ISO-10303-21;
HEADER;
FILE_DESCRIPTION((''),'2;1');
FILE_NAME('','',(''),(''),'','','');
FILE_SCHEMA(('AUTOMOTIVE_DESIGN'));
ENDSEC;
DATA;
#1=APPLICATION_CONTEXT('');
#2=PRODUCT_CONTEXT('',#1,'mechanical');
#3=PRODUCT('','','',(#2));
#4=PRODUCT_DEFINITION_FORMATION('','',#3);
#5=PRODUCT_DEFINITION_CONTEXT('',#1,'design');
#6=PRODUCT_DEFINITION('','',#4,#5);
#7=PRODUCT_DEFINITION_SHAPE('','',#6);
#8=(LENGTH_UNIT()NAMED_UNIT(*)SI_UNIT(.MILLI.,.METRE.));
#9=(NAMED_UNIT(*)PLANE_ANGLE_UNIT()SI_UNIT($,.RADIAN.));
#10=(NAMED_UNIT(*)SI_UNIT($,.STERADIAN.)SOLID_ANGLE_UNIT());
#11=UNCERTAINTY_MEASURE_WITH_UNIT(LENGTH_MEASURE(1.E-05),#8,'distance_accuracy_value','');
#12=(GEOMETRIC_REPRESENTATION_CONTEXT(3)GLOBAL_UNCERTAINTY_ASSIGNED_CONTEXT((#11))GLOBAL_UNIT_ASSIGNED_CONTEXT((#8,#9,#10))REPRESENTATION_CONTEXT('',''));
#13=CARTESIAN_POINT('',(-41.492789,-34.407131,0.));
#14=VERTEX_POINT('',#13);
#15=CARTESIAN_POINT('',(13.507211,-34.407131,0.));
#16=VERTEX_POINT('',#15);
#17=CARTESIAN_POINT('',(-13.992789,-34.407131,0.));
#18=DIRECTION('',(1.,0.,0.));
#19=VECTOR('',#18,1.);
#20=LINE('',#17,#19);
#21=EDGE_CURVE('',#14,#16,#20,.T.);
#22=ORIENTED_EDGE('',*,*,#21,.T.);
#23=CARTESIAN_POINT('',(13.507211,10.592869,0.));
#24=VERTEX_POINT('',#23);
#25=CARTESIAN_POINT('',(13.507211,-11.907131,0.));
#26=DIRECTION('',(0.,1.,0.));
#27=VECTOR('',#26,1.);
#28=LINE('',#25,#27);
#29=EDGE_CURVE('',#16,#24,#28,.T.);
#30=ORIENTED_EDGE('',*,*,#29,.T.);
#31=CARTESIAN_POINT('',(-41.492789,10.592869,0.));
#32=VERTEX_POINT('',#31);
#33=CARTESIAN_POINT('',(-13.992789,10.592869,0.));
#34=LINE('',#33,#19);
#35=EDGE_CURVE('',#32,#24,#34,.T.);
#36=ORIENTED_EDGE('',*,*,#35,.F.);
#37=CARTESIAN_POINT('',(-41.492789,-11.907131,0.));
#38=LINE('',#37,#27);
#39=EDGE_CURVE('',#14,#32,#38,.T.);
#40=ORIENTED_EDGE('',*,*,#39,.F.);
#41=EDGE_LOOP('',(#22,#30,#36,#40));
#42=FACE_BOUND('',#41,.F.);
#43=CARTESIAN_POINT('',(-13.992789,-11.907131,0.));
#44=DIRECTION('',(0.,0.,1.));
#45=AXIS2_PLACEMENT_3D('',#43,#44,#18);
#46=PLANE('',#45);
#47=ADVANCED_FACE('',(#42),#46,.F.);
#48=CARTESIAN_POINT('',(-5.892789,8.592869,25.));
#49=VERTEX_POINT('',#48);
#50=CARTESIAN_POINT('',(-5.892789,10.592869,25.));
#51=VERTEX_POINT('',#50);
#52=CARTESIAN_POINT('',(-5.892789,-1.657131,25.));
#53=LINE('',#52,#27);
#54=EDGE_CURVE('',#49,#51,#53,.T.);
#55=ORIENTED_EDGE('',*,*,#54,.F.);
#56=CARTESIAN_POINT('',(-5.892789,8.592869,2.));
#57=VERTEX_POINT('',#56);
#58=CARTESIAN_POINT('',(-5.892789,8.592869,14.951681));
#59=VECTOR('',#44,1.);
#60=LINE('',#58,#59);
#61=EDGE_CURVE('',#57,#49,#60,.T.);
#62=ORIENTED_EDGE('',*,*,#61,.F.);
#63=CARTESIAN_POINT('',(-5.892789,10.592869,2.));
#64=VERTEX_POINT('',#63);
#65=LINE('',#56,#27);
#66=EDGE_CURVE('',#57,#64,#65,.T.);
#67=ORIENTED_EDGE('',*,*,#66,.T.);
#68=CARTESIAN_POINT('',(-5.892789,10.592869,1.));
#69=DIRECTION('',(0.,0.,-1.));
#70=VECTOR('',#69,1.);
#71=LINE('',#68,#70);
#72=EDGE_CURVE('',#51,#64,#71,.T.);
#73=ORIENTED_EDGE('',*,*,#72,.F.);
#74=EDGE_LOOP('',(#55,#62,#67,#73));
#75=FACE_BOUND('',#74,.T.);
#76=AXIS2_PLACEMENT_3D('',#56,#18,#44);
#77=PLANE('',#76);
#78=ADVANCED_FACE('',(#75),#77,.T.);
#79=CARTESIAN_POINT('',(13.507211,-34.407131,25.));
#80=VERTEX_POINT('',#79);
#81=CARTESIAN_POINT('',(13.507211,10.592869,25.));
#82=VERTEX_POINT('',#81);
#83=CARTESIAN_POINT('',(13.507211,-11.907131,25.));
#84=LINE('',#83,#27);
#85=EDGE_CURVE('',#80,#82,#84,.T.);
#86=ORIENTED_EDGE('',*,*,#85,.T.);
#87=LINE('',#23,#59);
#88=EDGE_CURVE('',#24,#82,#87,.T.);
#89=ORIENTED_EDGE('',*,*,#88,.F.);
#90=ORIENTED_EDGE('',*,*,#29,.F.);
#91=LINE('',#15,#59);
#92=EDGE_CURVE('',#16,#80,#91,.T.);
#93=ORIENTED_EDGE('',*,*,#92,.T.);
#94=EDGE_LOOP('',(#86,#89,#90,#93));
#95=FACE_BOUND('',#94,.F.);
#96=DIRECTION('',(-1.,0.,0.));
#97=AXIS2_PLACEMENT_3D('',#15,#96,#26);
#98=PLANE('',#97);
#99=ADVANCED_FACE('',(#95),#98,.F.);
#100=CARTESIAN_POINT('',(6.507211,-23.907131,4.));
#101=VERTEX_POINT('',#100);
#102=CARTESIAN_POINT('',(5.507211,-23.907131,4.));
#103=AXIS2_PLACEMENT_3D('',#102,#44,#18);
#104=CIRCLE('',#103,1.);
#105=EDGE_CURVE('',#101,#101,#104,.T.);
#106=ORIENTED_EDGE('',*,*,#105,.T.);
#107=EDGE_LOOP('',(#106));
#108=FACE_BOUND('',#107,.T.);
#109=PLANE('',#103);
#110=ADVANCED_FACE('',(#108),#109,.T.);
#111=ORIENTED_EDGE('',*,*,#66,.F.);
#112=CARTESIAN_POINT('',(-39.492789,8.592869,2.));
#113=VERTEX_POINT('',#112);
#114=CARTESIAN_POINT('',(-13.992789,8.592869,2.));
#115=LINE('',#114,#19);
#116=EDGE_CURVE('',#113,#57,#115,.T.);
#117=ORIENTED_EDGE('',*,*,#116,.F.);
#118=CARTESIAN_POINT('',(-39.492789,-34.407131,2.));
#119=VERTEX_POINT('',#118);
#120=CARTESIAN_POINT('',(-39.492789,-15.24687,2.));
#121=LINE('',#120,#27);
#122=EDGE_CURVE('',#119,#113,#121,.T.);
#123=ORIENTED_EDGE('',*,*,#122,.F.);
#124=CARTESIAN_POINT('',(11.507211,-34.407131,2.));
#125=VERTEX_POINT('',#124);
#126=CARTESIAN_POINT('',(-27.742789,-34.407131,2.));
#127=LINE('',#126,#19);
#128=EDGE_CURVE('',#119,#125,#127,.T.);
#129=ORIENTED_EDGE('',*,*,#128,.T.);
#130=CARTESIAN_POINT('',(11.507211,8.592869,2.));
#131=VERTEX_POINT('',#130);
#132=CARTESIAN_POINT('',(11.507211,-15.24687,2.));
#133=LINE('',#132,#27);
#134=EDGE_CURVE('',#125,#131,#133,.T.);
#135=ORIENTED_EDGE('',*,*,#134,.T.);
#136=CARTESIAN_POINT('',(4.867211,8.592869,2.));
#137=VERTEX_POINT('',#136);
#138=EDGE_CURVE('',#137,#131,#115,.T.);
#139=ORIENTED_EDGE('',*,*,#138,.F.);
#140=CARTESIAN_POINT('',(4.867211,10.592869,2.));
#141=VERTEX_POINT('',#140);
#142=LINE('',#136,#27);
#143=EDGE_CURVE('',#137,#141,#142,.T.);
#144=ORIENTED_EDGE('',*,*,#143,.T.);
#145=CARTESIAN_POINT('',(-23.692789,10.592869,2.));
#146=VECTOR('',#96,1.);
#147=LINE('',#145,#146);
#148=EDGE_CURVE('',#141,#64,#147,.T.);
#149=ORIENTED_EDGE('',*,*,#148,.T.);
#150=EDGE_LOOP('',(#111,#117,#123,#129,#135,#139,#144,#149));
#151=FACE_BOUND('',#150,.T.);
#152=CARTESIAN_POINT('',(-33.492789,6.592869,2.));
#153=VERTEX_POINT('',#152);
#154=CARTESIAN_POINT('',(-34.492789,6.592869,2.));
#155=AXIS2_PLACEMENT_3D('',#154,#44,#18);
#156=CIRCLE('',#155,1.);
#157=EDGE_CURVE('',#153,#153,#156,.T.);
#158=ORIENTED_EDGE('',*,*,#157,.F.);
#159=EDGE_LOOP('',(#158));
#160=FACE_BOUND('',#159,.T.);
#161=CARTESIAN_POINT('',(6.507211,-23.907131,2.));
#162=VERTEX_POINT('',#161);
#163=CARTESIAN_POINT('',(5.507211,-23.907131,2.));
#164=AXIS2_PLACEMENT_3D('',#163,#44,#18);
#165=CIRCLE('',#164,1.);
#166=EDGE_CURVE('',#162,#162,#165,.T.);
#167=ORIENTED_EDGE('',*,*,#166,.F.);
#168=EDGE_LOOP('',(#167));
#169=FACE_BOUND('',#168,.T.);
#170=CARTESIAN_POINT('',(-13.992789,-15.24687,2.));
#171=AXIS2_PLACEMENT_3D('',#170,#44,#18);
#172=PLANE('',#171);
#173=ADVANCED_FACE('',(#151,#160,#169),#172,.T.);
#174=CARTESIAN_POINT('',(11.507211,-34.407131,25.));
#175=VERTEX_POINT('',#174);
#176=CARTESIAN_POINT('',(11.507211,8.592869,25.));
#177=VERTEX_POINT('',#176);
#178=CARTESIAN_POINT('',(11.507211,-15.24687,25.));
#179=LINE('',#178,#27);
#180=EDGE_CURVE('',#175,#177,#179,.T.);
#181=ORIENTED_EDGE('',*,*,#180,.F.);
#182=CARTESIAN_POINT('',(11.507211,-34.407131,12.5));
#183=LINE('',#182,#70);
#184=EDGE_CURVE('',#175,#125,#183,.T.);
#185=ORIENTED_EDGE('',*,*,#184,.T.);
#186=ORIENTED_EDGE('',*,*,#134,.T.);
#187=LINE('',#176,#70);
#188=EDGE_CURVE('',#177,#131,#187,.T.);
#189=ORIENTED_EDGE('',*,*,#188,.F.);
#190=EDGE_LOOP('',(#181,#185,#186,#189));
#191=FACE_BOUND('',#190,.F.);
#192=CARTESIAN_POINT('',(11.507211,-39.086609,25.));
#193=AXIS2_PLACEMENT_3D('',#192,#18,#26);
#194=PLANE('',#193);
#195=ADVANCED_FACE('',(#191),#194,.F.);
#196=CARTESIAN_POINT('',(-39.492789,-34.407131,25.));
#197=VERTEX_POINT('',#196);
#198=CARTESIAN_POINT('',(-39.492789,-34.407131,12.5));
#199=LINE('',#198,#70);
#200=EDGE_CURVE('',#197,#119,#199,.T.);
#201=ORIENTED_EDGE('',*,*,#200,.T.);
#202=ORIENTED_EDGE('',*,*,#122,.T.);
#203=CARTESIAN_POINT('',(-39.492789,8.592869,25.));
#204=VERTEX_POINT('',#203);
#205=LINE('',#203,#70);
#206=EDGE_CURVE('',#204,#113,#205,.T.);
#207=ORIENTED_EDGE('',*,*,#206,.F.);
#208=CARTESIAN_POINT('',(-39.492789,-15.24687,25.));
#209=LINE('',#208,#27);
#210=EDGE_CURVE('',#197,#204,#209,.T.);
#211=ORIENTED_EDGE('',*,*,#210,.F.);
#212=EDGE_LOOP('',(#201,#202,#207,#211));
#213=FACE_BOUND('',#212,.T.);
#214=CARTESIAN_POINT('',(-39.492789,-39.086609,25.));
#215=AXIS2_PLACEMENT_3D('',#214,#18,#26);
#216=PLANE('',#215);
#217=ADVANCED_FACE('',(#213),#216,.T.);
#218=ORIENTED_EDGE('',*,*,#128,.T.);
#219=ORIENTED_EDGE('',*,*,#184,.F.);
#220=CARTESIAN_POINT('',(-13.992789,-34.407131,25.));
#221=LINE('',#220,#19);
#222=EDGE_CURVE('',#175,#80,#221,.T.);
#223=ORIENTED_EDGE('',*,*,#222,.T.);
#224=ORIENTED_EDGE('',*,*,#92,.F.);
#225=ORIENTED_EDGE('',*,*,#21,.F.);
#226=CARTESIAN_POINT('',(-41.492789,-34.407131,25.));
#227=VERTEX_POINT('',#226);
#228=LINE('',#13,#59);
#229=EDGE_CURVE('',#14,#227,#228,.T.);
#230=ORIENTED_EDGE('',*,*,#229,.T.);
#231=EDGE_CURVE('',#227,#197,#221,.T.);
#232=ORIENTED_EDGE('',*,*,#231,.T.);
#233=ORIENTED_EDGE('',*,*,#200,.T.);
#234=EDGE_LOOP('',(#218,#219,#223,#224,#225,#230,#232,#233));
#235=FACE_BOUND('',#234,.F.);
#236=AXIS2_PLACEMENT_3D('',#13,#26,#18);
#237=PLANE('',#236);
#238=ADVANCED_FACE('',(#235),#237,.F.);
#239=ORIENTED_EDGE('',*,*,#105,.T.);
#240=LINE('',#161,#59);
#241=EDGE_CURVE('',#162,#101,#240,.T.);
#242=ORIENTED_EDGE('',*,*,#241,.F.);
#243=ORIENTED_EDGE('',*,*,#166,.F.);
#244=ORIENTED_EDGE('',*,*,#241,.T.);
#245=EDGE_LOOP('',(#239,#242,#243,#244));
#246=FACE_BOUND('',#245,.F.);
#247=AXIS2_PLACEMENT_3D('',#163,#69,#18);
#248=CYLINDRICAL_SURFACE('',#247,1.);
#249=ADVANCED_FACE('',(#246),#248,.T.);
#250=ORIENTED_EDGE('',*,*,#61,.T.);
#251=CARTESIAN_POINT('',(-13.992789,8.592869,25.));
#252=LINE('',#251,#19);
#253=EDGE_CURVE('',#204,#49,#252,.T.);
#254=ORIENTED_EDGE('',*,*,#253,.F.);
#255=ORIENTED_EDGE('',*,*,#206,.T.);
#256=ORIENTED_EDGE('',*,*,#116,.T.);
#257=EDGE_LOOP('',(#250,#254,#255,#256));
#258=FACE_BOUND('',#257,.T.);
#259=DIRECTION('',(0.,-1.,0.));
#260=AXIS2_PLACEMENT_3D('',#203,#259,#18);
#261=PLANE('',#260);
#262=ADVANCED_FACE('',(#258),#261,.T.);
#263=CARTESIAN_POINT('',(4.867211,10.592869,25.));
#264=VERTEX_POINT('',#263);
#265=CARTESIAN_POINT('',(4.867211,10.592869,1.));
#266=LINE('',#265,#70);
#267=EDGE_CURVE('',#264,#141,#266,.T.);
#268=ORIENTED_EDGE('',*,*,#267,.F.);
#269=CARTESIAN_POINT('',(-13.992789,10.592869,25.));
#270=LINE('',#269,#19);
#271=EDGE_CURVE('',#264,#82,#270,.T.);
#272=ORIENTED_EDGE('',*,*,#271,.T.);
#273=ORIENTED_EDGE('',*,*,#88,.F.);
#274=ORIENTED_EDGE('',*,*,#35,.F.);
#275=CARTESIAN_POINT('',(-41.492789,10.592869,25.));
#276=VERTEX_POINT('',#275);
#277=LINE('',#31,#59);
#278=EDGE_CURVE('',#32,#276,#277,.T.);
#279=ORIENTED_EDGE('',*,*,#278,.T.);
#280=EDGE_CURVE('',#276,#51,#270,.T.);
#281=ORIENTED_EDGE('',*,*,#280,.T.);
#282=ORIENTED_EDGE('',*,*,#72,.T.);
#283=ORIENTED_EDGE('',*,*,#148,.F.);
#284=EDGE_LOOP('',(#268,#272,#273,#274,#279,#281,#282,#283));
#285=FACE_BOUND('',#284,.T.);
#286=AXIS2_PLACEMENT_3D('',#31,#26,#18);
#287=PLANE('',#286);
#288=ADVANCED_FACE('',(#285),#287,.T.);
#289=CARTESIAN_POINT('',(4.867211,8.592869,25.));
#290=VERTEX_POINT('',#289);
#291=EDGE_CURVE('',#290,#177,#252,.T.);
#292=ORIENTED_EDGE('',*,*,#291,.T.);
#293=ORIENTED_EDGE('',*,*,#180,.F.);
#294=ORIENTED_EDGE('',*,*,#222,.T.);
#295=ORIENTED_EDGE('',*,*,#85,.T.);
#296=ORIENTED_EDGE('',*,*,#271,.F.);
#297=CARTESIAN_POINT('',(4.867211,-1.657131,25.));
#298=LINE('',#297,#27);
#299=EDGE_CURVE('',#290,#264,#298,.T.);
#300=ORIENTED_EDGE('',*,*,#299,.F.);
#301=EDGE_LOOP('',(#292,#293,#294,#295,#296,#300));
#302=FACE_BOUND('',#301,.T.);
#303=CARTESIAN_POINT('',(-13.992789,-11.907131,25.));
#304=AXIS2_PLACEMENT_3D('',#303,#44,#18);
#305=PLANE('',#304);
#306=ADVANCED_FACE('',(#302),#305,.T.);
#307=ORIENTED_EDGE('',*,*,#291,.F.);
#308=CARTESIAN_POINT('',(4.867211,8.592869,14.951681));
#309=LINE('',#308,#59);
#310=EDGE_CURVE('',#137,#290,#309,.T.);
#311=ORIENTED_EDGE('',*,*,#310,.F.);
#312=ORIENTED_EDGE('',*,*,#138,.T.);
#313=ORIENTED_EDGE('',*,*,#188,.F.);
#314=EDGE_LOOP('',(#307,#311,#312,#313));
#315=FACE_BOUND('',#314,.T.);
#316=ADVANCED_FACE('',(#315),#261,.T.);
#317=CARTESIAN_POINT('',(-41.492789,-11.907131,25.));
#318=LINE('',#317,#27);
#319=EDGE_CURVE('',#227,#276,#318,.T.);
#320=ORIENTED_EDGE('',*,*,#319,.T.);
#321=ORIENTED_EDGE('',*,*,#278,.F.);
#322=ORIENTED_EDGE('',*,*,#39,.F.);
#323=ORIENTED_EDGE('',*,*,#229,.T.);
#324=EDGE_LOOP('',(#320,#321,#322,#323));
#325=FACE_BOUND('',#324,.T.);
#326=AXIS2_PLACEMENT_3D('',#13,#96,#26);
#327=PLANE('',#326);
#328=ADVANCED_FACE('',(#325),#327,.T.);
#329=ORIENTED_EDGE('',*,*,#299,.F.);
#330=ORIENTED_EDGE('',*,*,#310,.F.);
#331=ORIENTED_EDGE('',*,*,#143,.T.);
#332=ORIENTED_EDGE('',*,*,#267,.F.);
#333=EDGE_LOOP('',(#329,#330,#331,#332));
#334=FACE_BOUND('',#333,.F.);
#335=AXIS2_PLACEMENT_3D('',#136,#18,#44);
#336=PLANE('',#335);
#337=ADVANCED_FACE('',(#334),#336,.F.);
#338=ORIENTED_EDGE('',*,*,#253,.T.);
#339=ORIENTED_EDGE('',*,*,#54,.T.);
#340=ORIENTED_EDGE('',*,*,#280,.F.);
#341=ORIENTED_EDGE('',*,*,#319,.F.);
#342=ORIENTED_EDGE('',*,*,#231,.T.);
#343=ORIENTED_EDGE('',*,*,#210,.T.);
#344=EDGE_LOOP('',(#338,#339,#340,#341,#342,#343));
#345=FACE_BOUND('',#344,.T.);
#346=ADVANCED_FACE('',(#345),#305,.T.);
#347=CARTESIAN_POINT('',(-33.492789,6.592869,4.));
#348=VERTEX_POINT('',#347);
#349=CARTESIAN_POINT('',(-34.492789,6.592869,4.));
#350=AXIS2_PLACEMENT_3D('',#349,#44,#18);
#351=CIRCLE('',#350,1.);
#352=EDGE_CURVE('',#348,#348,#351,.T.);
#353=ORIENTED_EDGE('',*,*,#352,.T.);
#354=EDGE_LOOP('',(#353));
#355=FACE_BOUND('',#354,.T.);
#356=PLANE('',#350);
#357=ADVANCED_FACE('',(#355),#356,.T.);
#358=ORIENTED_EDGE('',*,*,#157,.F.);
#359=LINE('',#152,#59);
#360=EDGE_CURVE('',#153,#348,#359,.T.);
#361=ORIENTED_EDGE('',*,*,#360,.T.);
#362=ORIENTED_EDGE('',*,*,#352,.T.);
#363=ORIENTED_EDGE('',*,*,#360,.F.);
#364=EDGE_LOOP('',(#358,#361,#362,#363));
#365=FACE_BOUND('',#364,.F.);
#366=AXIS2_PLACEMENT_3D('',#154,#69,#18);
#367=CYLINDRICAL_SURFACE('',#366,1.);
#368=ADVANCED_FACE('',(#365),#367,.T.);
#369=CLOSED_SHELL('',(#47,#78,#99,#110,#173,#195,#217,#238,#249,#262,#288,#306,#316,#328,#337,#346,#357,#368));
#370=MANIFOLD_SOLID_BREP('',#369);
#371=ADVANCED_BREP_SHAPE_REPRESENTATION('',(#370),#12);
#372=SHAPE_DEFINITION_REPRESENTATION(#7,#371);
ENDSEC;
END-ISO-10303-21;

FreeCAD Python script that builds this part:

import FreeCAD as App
import Part
import Sketcher
from FreeCAD import Vector
Q = App.Units.Quantity

doc = App.newDocument("Part")
body = doc.addObject("PartDesign::Body", "Body")

sketch1 = body.newObject("Sketcher::SketchObject", "Sketch")
sketch1.AttachmentSupport = (doc.getObject("XY_Plane"), [""])
sketch1.MapMode = "FlatFace"
sketch1.addGeometry([
    Part.LineSegment(Vector(-41, 11, 0), Vector(-41, -34, 0)),
    Part.LineSegment(Vector(-41, -34, 0), Vector(14, -34, 0)),
    Part.LineSegment(Vector(14, -34, 0), Vector(14, 11, 0)),
    Part.LineSegment(Vector(14, 11, 0), Vector(-41, 11, 0)),
], False)
sketch1.addConstraint([
    Sketcher.Constraint("Coincident", 0, 2, 1, 1),
    Sketcher.Constraint("Coincident", 1, 2, 2, 1),
    Sketcher.Constraint("Coincident", 2, 2, 3, 1),
    Sketcher.Constraint("Coincident", 3, 2, 0, 1),
    Sketcher.Constraint("Vertical", 0),
    Sketcher.Constraint("Horizontal", 1),
    Sketcher.Constraint("Vertical", 2),
    Sketcher.Constraint("Horizontal", 3),
    Sketcher.Constraint("DistanceX", 1, 1, 1, 2, Q("55 mm")),
    Sketcher.Constraint("DistanceY", 0, 2, 0, 1, Q("45 mm")),
    Sketcher.Constraint("DistanceX", 0, 2, -1, 1, Q("41.492789 mm")),
    Sketcher.Constraint("DistanceY", 0, 2, -1, 1, Q("34.407131 mm")),
])
pad1 = body.newObject("PartDesign::Pad", "Pad")
pad1.Profile = sketch1
pad1.Length = 25

sketch2 = body.newObject("Sketcher::SketchObject", "Sketch001")
sketch2.AttachmentSupport = (doc.getObject("XY_Plane"), [""])
sketch2.MapMode = "FlatFace"
sketch2.AttachmentOffset = App.Placement(Vector(0, 0, 25), App.Rotation())
sketch2.addGeometry([
    Part.LineSegment(Vector(-39, 9, 0), Vector(-39, -39, 0)),
    Part.LineSegment(Vector(-39, -39, 0), Vector(12, -39, 0)),
    Part.LineSegment(Vector(12, -39, 0), Vector(12, 9, 0)),
    Part.LineSegment(Vector(12, 9, 0), Vector(-39, 9, 0)),
], False)
sketch2.addConstraint([
    Sketcher.Constraint("Coincident", 0, 2, 1, 1),
    Sketcher.Constraint("Coincident", 1, 2, 2, 1),
    Sketcher.Constraint("Coincident", 2, 2, 3, 1),
    Sketcher.Constraint("Coincident", 3, 2, 0, 1),
    Sketcher.Constraint("Vertical", 0),
    Sketcher.Constraint("Horizontal", 1),
    Sketcher.Constraint("Vertical", 2),
    Sketcher.Constraint("Horizontal", 3),
    Sketcher.Constraint("DistanceX", 1, 1, 1, 2, Q("51 mm")),
    Sketcher.Constraint("DistanceY", 0, 2, 0, 1, Q("47.679478 mm")),
    Sketcher.Constraint("DistanceX", 0, 2, -1, 1, Q("39.492789 mm")),
    Sketcher.Constraint("DistanceY", 0, 2, -1, 1, Q("39.086609 mm")),
])
pocket1 = body.newObject("PartDesign::Pocket", "Pocket")
pocket1.Profile = sketch2
pocket1.Length = 23

sketch3 = body.newObject("Sketcher::SketchObject", "Sketch002")
sketch3.AttachmentSupport = (doc.getObject("XY_Plane"), [""])
sketch3.MapMode = "FlatFace"
sketch3.AttachmentOffset = App.Placement(Vector(0, 0, 2), App.Rotation())
sketch3.addGeometry([
    Part.Circle(Vector(-34.5, 6.6, 0), Vector(0, 0, 1), 1),
    Part.Circle(Vector(5.5, -23.9, 0), Vector(0, 0, 1), 1),
], False)
sketch3.addConstraint([
    Sketcher.Constraint("Equal", 0, 1),
    Sketcher.Constraint("Diameter", 0, Q("2 mm")),
    Sketcher.Constraint("DistanceX", 0, 3, 1, 3, Q("40 mm")),
    Sketcher.Constraint("DistanceY", 1, 3, 0, 3, Q("30.5 mm")),
    Sketcher.Constraint("DistanceX", 0, 3, -1, 1, Q("34.492789 mm")),
    Sketcher.Constraint("DistanceY", -1, 1, 0, 3, Q("6.592869 mm")),
])
pad2 = body.newObject("PartDesign::Pad", "Pad001")
pad2.Profile = sketch3
pad2.Length = 2

sketch4 = body.newObject("Sketcher::SketchObject", "Sketch003")
sketch4.AttachmentSupport = (doc.getObject("XZ_Plane"), [""])
sketch4.MapMode = "FlatFace"
sketch4.AttachmentOffset = App.Placement(Vector(0, 0, -8.592869), App.Rotation())
sketch4.addGeometry([
    Part.LineSegment(Vector(-6, 28, 0), Vector(-6, 2, 0)),
    Part.LineSegment(Vector(-6, 2, 0), Vector(5, 2, 0)),
    Part.LineSegment(Vector(5, 2, 0), Vector(5, 28, 0)),
    Part.LineSegment(Vector(5, 28, 0), Vector(-6, 28, 0)),
], False)
sketch4.addConstraint([
    Sketcher.Constraint("Coincident", 0, 2, 1, 1),
    Sketcher.Constraint("Coincident", 1, 2, 2, 1),
    Sketcher.Constraint("Coincident", 2, 2, 3, 1),
    Sketcher.Constraint("Coincident", 3, 2, 0, 1),
    Sketcher.Constraint("Vertical", 0),
    Sketcher.Constraint("Horizontal", 1),
    Sketcher.Constraint("Vertical", 2),
    Sketcher.Constraint("Horizontal", 3),
    Sketcher.Constraint("DistanceY", -1, 1, 0, 2, Q("2 mm")),
    Sketcher.Constraint("DistanceX", 1, 1, 1, 2, Q("10.76 mm")),
    Sketcher.Constraint("DistanceY", 0, 2, 0, 1, Q("25.903362 mm")),
    Sketcher.Constraint("DistanceX", 0, 2, -1, 1, Q("5.892789 mm")),
])
pocket2 = body.newObject("PartDesign::Pocket", "Pocket001")
pocket2.Profile = sketch4
pocket2.Length = 5

doc.recompute()
